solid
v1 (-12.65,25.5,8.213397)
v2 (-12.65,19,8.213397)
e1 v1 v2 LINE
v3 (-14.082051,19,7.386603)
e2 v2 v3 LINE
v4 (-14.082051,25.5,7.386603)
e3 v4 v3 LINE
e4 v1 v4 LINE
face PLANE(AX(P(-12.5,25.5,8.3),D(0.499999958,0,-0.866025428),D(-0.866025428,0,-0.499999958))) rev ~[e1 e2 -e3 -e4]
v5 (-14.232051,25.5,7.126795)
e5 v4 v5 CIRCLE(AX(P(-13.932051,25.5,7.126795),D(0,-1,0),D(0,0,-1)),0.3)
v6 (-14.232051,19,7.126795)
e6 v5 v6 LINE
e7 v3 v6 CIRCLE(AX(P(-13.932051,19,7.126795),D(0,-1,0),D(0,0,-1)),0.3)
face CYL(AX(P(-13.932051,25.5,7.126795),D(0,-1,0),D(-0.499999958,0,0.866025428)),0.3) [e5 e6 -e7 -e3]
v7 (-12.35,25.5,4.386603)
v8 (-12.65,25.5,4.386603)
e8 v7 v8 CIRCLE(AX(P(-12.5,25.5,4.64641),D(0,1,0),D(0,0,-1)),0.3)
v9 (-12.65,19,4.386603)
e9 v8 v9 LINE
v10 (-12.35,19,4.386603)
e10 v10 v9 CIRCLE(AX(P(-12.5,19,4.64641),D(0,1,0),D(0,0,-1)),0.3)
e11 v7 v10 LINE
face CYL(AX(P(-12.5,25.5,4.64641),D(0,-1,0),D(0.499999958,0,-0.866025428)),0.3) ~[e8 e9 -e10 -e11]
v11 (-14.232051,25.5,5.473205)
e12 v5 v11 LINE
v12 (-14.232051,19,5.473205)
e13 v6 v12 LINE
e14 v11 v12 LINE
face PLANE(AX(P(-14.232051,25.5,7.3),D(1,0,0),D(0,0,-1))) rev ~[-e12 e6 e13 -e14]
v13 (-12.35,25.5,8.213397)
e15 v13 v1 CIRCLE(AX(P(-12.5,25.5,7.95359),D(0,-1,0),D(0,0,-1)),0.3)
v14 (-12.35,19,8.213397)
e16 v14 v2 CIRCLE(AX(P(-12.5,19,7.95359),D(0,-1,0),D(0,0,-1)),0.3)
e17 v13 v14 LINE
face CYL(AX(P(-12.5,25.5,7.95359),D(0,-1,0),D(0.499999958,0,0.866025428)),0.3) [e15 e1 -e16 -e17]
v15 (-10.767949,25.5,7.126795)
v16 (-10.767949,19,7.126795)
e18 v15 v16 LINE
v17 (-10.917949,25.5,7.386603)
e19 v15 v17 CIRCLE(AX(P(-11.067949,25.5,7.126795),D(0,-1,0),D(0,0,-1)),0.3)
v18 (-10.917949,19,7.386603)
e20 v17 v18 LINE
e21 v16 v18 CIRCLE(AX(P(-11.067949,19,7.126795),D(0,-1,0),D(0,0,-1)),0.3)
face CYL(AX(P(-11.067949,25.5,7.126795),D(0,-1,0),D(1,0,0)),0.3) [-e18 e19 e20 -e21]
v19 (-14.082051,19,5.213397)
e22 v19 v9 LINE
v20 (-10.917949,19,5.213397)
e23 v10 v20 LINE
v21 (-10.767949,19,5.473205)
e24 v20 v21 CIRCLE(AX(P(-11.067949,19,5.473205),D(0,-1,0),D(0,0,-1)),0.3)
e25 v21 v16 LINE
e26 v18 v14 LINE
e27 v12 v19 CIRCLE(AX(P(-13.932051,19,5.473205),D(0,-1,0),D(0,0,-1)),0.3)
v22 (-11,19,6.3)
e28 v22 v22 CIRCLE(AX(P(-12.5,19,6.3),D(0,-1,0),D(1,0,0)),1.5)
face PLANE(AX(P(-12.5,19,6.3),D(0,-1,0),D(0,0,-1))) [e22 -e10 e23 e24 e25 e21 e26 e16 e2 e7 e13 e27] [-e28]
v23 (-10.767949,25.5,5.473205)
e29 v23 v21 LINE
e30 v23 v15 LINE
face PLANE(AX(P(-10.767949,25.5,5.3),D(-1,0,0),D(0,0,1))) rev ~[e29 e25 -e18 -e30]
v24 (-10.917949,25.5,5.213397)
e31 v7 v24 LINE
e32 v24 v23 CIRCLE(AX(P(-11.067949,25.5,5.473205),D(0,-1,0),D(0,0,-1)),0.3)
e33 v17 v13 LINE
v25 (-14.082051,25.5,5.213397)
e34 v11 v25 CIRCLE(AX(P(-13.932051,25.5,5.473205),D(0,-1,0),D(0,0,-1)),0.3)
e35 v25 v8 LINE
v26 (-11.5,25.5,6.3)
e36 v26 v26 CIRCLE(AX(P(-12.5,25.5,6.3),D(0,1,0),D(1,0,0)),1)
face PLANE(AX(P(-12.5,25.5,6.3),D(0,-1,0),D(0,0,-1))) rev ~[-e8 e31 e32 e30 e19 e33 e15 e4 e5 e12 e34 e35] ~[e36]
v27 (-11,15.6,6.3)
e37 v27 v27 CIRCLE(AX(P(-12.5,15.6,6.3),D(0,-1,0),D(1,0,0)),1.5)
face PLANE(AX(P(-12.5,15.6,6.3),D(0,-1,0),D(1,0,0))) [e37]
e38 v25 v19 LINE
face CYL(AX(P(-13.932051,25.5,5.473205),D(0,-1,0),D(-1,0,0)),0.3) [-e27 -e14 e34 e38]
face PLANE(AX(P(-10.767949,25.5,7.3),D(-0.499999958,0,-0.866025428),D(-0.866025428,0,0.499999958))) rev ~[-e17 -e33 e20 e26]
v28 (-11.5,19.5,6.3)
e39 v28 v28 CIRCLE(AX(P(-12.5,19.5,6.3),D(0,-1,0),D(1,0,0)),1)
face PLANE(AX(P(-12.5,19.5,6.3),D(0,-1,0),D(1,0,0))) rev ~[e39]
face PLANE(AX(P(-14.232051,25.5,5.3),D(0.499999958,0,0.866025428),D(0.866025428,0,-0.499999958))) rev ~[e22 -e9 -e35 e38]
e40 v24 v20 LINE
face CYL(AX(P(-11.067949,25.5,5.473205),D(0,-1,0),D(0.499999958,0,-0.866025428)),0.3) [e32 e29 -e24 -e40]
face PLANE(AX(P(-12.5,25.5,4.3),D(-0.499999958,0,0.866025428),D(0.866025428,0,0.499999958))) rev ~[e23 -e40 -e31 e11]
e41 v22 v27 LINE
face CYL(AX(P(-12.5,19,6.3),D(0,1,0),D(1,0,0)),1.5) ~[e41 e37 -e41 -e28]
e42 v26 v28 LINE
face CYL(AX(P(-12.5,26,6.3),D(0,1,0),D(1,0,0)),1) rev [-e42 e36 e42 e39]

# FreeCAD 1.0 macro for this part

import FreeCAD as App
import Part
import Sketcher

V = App.Vector
Q = App.Units.Quantity


def edges_at(feature, points):
    """Names of the edges that pass closest to the given points."""
    edges = feature.Shape.Edges
    near = lambda p: min(range(len(edges)), key=lambda i: edges[i].distToShape(Part.Vertex(*p))[0])
    return sorted({f"Edge{near(p) + 1}" for p in points})

doc = App.newDocument("Part")
body = doc.addObject("PartDesign::Body", "Body")

# Sketch on XZ plane
sketch1 = doc.addObject("Sketcher::SketchObject", "Sketch")
body.addObject(sketch1)
sketch1.AttachmentSupport = (doc.XZ_Plane, [""])
sketch1.MapMode = "FlatFace"
sketch1.AttachmentOffset = App.Placement(V(0, 0, -25.5), App.Rotation())
sketch1.addGeometry(Part.LineSegment(V(12.5, 4.3, 0), V(14.2, 5.3, 0)), False)
sketch1.addGeometry(Part.LineSegment(V(14.2, 5.3, 0), V(14.2, 7.3, 0)), False)
sketch1.addGeometry(Part.LineSegment(V(14.2, 7.3, 0), V(12.5, 8.3, 0)), False)
sketch1.addGeometry(Part.LineSegment(V(12.5, 8.3, 0), V(10.8, 7.3, 0)), False)
sketch1.addGeometry(Part.LineSegment(V(10.8, 7.3, 0), V(10.8, 5.3, 0)), False)
sketch1.addGeometry(Part.LineSegment(V(10.8, 5.3, 0), V(12.5, 4.3, 0)), False)
sketch1.addConstraint(Sketcher.Constraint("Coincident", 0, 2, 1, 1))
sketch1.addConstraint(Sketcher.Constraint("Coincident", 1, 2, 2, 1))
sketch1.addConstraint(Sketcher.Constraint("Coincident", 2, 2, 3, 1))
sketch1.addConstraint(Sketcher.Constraint("Coincident", 3, 2, 4, 1))
sketch1.addConstraint(Sketcher.Constraint("Coincident", 4, 2, 5, 1))
sketch1.addConstraint(Sketcher.Constraint("Coincident", 5, 2, 0, 1))
sketch1.addConstraint(Sketcher.Constraint("Vertical", 1))
sketch1.addConstraint(Sketcher.Constraint("Vertical", 4))
sketch1.addConstraint(Sketcher.Constraint("Parallel", 0, 3))
sketch1.addConstraint(Sketcher.Constraint("Parallel", 2, 5))
sketch1.addConstraint(Sketcher.Constraint("Horizontal", 1, 2, 3, 2))
sketch1.addConstraint(Sketcher.Constraint("Horizontal", 0, 2, 4, 2))
sketch1.addConstraint(Sketcher.Constraint("Vertical", 2, 2, 5, 2))
sketch1.addConstraint(Sketcher.Constraint("DistanceY", 1, 1, 1, 2, 2.0))
sketch1.addConstraint(Sketcher.Constraint("Angle", 0, Q("29.999997 deg")))
sketch1.addConstraint(Sketcher.Constraint("Distance", 0, 2.0))
sketch1.addConstraint(Sketcher.Constraint("DistanceY", -1, 1, 0, 2, 5.3))
sketch1.addConstraint(Sketcher.Constraint("DistanceX", -1, 1, 2, 2, 12.5))
pad1 = doc.addObject("PartDesign::Pad", "Pad")
body.addObject(pad1)
pad1.Profile = sketch1
pad1.Length = 6.5
doc.recompute()

fillet = doc.addObject("PartDesign::Fillet", "Fillet")
body.addObject(fillet)
fillet.Base = (pad1, edges_at(pad1, [
    (12.5, 22.25, 8.3),
    (14.232, 22.25, 7.3),
    (10.768, 22.25, 7.3),
    (14.232, 22.25, 5.3),
    (12.5, 22.25, 4.3),
    (10.768, 22.25, 5.3),
]))
fillet.Radius = 0.3

# Sketch on XZ plane
sketch2 = doc.addObject("Sketcher::SketchObject", "Sketch001")
body.addObject(sketch2)
sketch2.AttachmentSupport = (doc.XZ_Plane, [""])
sketch2.MapMode = "FlatFace"
sketch2.AttachmentOffset = App.Placement(V(0, 0, -19), App.Rotation())
sketch2.addGeometry(Part.Circle(V(12.5, 6.3, 0), V(0, 0, 1), 1.5), False)
sketch2.addConstraint(Sketcher.Constraint("Diameter", 0, 3.0))
sketch2.addConstraint(Sketcher.Constraint("DistanceX", -1, 1, 0, 3, 12.5))
sketch2.addConstraint(Sketcher.Constraint("DistanceY", -1, 1, 0, 3, 6.3))
pad2 = doc.addObject("PartDesign::Pad", "Pad001")
body.addObject(pad2)
pad2.Profile = sketch2
pad2.Length = 3.4

# Sketch on XZ plane
sketch3 = doc.addObject("Sketcher::SketchObject", "Sketch002")
body.addObject(sketch3)
sketch3.AttachmentSupport = (doc.XZ_Plane, [""])
sketch3.MapMode = "FlatFace"
sketch3.AttachmentOffset = App.Placement(V(0, 0, -26), App.Rotation())
sketch3.addGeometry(Part.Circle(V(12.5, 6.3, 0), V(0, 0, 1), 1), False)
sketch3.addConstraint(Sketcher.Constraint("Diameter", 0, 2.0))
sketch3.addConstraint(Sketcher.Constraint("DistanceX", -1, 1, 0, 3, 12.5))
sketch3.addConstraint(Sketcher.Constraint("DistanceY", -1, 1, 0, 3, 6.3))
pocket1 = doc.addObject("PartDesign::Pocket", "Pocket")
body.addObject(pocket1)
pocket1.Profile = sketch3
pocket1.Length = 6.5
pocket1.Reversed = True
body2 = doc.addObject("PartDesign::Body", "Body001")
doc.recompute()

body.Placement = App.Placement(V(-25, 0, 0), App.Rotation(V(0, 0, 1), 0))
boolean = doc.addObject("PartDesign::Boolean", "Boolean")
body2.addObject(boolean)
boolean.Type = "Fuse"
boolean.addObjects([body])

doc.recompute()
